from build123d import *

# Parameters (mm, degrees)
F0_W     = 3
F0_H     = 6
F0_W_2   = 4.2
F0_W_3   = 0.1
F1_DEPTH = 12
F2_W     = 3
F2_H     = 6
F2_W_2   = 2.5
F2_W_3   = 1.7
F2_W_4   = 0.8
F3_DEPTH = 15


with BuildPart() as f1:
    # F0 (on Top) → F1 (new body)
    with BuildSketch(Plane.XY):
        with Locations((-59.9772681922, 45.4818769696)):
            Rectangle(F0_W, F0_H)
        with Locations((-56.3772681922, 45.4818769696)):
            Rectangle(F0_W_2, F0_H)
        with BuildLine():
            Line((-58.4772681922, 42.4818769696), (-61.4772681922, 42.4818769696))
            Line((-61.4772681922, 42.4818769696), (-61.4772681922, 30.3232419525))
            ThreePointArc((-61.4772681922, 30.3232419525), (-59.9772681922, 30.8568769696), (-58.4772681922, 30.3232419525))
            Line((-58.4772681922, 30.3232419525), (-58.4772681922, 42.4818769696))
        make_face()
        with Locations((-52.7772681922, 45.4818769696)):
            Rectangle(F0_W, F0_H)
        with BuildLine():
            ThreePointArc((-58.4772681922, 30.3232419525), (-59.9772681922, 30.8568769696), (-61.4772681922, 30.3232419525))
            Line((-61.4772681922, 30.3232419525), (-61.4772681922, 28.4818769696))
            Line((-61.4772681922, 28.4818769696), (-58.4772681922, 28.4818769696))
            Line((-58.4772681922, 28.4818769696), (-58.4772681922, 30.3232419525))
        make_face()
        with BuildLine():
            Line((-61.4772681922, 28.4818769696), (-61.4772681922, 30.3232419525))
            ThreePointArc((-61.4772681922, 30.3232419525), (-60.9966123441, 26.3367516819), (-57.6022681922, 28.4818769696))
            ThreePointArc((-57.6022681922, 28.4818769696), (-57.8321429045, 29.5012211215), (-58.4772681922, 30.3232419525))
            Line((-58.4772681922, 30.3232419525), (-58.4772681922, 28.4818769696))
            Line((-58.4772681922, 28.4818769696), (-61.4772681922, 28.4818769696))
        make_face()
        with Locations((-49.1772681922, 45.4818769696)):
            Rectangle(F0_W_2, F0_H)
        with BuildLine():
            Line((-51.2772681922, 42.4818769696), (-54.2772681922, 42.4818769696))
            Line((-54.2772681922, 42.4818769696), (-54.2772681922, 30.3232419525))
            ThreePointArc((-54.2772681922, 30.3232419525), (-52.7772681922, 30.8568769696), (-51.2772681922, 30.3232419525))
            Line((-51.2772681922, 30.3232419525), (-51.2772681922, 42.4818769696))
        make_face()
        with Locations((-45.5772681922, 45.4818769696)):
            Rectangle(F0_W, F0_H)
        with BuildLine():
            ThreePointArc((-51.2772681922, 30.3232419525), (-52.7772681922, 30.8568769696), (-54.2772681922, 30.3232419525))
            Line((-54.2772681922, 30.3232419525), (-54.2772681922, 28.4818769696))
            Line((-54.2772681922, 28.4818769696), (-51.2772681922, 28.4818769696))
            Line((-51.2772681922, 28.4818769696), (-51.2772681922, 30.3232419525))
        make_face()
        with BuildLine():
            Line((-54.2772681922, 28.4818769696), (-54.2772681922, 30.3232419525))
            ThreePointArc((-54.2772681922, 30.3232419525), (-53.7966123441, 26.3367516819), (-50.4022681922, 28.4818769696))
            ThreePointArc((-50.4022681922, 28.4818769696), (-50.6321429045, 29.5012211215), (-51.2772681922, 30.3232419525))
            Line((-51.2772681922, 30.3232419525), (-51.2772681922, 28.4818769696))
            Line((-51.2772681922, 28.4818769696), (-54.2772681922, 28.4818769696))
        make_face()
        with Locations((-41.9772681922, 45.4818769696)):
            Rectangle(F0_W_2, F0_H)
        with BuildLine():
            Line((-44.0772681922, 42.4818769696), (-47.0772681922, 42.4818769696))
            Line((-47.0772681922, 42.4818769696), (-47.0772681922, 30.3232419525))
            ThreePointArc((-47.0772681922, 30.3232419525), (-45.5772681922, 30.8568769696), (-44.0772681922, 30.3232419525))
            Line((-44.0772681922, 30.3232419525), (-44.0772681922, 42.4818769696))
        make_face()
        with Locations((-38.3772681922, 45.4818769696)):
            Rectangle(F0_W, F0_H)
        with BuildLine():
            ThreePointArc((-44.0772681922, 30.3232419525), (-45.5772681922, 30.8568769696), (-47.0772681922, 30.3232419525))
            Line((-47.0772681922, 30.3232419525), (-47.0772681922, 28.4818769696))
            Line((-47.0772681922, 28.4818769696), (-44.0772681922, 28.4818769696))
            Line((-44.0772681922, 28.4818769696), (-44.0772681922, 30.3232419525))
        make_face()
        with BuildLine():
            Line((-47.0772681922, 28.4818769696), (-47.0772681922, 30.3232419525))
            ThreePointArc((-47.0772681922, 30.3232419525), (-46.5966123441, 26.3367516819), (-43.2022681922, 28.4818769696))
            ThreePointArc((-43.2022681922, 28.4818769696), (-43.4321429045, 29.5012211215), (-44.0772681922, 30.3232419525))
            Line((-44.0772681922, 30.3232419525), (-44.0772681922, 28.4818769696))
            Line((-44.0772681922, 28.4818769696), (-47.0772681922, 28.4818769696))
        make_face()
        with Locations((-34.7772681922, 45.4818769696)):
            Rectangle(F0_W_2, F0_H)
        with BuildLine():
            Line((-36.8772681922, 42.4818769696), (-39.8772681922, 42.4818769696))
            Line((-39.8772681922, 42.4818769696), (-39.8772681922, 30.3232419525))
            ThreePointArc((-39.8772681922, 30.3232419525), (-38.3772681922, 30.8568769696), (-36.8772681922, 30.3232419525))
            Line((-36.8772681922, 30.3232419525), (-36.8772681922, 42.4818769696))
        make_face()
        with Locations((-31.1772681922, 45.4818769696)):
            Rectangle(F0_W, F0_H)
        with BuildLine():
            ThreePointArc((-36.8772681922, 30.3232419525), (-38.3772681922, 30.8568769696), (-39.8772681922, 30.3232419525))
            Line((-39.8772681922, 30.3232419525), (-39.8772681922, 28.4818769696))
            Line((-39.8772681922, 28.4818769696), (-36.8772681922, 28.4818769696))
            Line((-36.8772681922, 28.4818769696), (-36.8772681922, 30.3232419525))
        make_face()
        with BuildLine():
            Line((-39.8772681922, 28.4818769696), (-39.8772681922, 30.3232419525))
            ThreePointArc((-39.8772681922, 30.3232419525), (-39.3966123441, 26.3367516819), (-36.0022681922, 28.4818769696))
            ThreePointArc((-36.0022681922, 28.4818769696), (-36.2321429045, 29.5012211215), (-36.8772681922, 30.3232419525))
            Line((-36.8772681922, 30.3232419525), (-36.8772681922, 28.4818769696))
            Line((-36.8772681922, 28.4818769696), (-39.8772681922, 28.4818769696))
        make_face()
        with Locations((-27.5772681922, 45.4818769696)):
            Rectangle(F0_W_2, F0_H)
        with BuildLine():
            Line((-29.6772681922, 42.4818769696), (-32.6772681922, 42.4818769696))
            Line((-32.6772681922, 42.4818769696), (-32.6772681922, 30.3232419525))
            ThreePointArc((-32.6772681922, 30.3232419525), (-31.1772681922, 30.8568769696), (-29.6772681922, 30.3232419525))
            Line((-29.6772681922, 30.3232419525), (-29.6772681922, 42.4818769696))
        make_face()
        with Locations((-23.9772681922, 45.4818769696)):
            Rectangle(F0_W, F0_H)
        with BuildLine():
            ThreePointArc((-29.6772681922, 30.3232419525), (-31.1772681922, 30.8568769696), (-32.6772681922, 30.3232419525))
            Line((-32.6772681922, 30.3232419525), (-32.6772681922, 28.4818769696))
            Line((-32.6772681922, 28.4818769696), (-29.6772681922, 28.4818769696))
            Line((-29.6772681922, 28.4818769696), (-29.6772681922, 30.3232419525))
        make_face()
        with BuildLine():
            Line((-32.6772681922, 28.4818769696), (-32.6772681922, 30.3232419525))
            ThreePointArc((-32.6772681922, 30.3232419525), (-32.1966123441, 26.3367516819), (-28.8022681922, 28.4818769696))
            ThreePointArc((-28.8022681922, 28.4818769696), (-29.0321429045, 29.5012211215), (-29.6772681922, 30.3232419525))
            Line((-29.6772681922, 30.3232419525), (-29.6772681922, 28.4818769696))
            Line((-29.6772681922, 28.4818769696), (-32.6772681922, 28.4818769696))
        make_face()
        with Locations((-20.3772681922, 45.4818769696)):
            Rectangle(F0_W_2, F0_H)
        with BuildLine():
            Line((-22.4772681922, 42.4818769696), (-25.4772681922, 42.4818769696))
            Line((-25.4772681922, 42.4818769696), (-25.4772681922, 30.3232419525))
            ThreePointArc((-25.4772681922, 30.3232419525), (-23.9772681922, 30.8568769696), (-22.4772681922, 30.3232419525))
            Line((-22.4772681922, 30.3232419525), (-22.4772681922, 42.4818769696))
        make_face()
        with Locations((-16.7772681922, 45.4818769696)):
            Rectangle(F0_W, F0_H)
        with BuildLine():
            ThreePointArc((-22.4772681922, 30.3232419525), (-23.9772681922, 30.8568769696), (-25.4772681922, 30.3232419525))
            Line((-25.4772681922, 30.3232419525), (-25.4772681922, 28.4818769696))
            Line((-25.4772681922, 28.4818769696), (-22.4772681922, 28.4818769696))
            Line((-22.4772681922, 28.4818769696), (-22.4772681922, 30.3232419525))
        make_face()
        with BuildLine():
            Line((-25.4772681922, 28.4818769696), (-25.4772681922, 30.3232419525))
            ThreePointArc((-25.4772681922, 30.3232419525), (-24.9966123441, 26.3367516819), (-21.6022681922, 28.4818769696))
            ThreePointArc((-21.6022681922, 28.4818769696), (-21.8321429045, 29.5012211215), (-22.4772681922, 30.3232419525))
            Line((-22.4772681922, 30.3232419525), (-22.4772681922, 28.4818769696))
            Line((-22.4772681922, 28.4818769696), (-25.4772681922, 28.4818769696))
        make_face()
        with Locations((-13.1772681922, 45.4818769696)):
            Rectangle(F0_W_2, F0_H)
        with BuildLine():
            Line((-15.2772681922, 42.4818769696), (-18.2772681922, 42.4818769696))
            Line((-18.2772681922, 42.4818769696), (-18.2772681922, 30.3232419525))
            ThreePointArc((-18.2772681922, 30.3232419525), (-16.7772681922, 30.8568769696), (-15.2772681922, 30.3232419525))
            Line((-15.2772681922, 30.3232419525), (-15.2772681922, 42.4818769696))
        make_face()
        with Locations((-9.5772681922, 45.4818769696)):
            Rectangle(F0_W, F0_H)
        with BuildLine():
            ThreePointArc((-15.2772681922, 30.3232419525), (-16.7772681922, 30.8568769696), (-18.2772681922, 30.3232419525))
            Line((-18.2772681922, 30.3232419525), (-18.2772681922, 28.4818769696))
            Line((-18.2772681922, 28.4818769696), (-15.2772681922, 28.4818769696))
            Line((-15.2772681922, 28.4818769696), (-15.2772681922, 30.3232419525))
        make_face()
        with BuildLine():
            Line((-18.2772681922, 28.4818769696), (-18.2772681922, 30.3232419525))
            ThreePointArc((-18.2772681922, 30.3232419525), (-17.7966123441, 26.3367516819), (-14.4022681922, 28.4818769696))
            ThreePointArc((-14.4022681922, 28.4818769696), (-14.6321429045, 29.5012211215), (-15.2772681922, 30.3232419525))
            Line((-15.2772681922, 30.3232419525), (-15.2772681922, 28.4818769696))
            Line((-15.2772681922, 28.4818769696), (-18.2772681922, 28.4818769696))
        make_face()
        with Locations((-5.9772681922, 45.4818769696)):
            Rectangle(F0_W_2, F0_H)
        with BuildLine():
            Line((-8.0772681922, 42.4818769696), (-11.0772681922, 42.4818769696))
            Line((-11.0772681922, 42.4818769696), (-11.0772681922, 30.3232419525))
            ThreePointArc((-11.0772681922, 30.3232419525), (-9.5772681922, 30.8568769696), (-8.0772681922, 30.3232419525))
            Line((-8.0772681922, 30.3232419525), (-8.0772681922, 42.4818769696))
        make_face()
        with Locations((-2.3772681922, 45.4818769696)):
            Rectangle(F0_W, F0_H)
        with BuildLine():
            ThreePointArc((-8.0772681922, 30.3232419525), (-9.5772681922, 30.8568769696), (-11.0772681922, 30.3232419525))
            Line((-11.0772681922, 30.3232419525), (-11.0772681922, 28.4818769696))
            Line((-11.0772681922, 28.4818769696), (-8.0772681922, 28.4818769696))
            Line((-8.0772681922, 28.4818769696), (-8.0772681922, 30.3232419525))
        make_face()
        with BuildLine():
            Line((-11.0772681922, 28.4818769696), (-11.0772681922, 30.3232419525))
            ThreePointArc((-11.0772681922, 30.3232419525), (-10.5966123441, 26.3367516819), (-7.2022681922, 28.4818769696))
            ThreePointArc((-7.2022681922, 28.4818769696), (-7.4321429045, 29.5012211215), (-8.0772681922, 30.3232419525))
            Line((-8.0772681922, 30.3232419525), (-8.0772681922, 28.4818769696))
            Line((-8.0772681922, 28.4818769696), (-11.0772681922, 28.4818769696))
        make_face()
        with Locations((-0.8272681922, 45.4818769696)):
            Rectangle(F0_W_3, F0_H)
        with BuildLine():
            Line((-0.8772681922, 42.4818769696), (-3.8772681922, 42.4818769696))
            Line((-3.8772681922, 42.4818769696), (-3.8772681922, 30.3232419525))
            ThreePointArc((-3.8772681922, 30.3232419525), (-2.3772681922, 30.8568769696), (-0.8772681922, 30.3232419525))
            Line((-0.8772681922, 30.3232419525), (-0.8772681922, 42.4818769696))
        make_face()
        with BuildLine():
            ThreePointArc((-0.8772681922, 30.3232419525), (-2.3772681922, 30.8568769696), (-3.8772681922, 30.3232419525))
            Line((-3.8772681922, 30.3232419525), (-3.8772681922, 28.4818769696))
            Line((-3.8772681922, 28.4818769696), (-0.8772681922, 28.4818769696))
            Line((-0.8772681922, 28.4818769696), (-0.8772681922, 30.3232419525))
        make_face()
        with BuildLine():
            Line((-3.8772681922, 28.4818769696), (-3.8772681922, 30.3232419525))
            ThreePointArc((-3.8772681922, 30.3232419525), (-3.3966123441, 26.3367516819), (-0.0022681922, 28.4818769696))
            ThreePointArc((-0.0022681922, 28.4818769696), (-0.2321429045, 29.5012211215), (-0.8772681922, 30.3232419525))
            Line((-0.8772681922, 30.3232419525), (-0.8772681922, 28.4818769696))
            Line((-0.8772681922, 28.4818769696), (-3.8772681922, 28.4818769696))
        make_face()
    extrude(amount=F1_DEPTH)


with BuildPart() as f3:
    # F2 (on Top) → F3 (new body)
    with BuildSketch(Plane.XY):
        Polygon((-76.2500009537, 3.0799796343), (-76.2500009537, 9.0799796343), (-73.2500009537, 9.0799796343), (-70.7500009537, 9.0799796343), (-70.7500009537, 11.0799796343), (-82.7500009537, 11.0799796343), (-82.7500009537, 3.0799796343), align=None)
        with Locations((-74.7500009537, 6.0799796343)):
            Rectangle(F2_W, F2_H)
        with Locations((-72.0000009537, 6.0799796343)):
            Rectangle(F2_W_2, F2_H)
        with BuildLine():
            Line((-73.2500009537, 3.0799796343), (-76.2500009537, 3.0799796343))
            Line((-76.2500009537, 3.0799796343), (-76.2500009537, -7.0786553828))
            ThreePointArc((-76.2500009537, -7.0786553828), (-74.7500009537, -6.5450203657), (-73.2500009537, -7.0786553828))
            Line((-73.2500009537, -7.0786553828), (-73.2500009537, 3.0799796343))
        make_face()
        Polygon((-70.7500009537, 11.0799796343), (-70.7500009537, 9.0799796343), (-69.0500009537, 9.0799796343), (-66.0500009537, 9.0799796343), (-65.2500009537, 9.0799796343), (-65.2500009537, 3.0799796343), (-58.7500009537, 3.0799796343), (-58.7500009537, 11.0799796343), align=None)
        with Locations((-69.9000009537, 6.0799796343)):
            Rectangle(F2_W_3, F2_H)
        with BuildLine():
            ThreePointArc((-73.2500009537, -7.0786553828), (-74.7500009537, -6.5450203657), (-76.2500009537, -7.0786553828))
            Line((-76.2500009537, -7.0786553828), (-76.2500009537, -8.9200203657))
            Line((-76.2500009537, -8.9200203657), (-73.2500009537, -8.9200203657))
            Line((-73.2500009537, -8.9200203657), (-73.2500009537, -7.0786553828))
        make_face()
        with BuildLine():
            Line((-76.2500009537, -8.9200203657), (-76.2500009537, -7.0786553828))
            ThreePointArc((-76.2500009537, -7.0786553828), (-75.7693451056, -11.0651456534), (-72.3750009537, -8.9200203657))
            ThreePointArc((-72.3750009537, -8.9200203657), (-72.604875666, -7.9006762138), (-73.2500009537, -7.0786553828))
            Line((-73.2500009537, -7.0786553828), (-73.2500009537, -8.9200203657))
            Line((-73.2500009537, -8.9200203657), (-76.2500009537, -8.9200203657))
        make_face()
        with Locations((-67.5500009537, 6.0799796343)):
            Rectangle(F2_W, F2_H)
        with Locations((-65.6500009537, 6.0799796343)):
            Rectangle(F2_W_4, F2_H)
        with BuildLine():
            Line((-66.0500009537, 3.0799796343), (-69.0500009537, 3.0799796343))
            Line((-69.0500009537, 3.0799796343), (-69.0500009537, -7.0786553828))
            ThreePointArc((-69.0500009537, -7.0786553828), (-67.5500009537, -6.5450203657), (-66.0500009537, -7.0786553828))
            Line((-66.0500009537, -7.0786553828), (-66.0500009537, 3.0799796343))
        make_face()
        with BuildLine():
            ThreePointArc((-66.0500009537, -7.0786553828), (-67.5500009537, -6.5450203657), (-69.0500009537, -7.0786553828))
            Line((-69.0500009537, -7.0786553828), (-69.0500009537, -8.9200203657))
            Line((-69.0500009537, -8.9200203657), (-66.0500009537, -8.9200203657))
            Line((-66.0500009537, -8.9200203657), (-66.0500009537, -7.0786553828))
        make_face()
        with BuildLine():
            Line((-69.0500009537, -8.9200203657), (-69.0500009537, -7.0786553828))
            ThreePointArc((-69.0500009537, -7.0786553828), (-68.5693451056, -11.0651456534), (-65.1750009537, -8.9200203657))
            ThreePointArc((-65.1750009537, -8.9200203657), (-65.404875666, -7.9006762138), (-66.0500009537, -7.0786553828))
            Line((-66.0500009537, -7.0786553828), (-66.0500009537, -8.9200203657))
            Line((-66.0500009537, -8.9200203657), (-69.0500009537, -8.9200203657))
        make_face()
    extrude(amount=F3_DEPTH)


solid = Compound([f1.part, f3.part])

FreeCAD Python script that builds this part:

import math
import FreeCAD as App
import Part
import Sketcher

doc = App.newDocument("Part")
params = doc.addObject("Spreadsheet::Sheet", "Params")
for row, (alias, value) in enumerate([
    ("sketch1_height", "6 mm"),
    ("sketch1_width", "4.2 mm"),
    ("sketch1_width2", "0.1 mm"),
    ("sketch1_width3", "60.7 mm"),
    ("pad1_length", "12 mm"),
    ("sketch2_width", "24 mm"),
    ("sketch2_height", "8 mm"),
    ("sketch2_width2", "6.5 mm"),
    ("sketch2_width3", "4.2 mm"),
    ("sketch2_width4", "7.3 mm"),
    ("pad2_length", "15 mm"),
], start=1):
    params.set(f"A{row}", alias)
    params.set(f"B{row}", "=" + value)
    params.setAlias(f"B{row}", alias)

body = doc.addObject("PartDesign::Body", "Body")

# Sketch on XY plane
sketch1 = doc.addObject("Sketcher::SketchObject", "Sketch")
body.addObject(sketch1)
sketch1.AttachmentSupport = (doc.XY_Plane, [""])
sketch1.MapMode = "FlatFace"
sketch1.addGeometry([
    Part.LineSegment(App.Vector(-61.48, 48.48, 0), App.Vector(-61.48, 30.32, 0)),  # 0
    Part.ArcOfCircle(Part.Circle(App.Vector(-59.98, 28.48, 0), App.Vector(0, 0, 1), 2.38), math.radians(129), math.radians(360)),  # 1
    Part.ArcOfCircle(Part.Circle(App.Vector(-59.98, 28.48, 0), App.Vector(0, 0, 1), 2.38), math.radians(0), math.radians(51)),  # 2
    Part.LineSegment(App.Vector(-58.48, 30.32, 0), App.Vector(-58.48, 42.48, 0)),  # 3
    Part.LineSegment(App.Vector(-58.48, 42.48, 0), App.Vector(-54.28, 42.48, 0)),  # 4
    Part.LineSegment(App.Vector(-54.28, 42.48, 0), App.Vector(-54.28, 30.32, 0)),  # 5
    Part.ArcOfCircle(Part.Circle(App.Vector(-52.78, 28.48, 0), App.Vector(0, 0, 1), 2.38), math.radians(129), math.radians(360)),  # 6
    Part.ArcOfCircle(Part.Circle(App.Vector(-52.78, 28.48, 0), App.Vector(0, 0, 1), 2.38), math.radians(0), math.radians(51)),  # 7
    Part.LineSegment(App.Vector(-51.28, 30.32, 0), App.Vector(-51.28, 42.48, 0)),  # 8
    Part.LineSegment(App.Vector(-51.28, 42.48, 0), App.Vector(-47.08, 42.48, 0)),  # 9
    Part.LineSegment(App.Vector(-47.08, 42.48, 0), App.Vector(-47.08, 30.32, 0)),  # 10
    Part.ArcOfCircle(Part.Circle(App.Vector(-45.58, 28.48, 0), App.Vector(0, 0, 1), 2.38), math.radians(129), math.radians(360)),  # 11
    Part.ArcOfCircle(Part.Circle(App.Vector(-45.58, 28.48, 0), App.Vector(0, 0, 1), 2.38), math.radians(0), math.radians(51)),  # 12
    Part.LineSegment(App.Vector(-44.08, 30.32, 0), App.Vector(-44.08, 42.48, 0)),  # 13
    Part.LineSegment(App.Vector(-44.08, 42.48, 0), App.Vector(-39.88, 42.48, 0)),  # 14
    Part.LineSegment(App.Vector(-39.88, 42.48, 0), App.Vector(-39.88, 30.32, 0)),  # 15
    Part.ArcOfCircle(Part.Circle(App.Vector(-38.38, 28.48, 0), App.Vector(0, 0, 1), 2.38), math.radians(129), math.radians(360)),  # 16
    Part.ArcOfCircle(Part.Circle(App.Vector(-38.38, 28.48, 0), App.Vector(0, 0, 1), 2.38), math.radians(0), math.radians(51)),  # 17
    Part.LineSegment(App.Vector(-36.88, 30.32, 0), App.Vector(-36.88, 42.48, 0)),  # 18
    Part.LineSegment(App.Vector(-36.88, 42.48, 0), App.Vector(-32.68, 42.48, 0)),  # 19
    Part.LineSegment(App.Vector(-32.68, 42.48, 0), App.Vector(-32.68, 30.32, 0)),  # 20
    Part.ArcOfCircle(Part.Circle(App.Vector(-31.18, 28.48, 0), App.Vector(0, 0, 1), 2.38), math.radians(129), math.radians(360)),  # 21
    Part.ArcOfCircle(Part.Circle(App.Vector(-31.18, 28.48, 0), App.Vector(0, 0, 1), 2.38), math.radians(0), math.radians(51)),  # 22
    Part.LineSegment(App.Vector(-29.68, 30.32, 0), App.Vector(-29.68, 42.48, 0)),  # 23
    Part.LineSegment(App.Vector(-29.68, 42.48, 0), App.Vector(-25.48, 42.48, 0)),  # 24
    Part.LineSegment(App.Vector(-25.48, 42.48, 0), App.Vector(-25.48, 30.32, 0)),  # 25
    Part.ArcOfCircle(Part.Circle(App.Vector(-23.98, 28.48, 0), App.Vector(0, 0, 1), 2.38), math.radians(129), math.radians(360)),  # 26
    Part.ArcOfCircle(Part.Circle(App.Vector(-23.98, 28.48, 0), App.Vector(0, 0, 1), 2.38), math.radians(0), math.radians(51)),  # 27
    Part.LineSegment(App.Vector(-22.48, 30.32, 0), App.Vector(-22.48, 42.48, 0)),  # 28
    Part.LineSegment(App.Vector(-22.48, 42.48, 0), App.Vector(-18.28, 42.48, 0)),  # 29
    Part.LineSegment(App.Vector(-18.28, 42.48, 0), App.Vector(-18.28, 30.32, 0)),  # 30
    Part.ArcOfCircle(Part.Circle(App.Vector(-16.78, 28.48, 0), App.Vector(0, 0, 1), 2.38), math.radians(129), math.radians(360)),  # 31
    Part.ArcOfCircle(Part.Circle(App.Vector(-16.78, 28.48, 0), App.Vector(0, 0, 1), 2.38), math.radians(0), math.radians(51)),  # 32
    Part.LineSegment(App.Vector(-15.28, 30.32, 0), App.Vector(-15.28, 42.48, 0)),  # 33
    Part.LineSegment(App.Vector(-15.28, 42.48, 0), App.Vector(-11.08, 42.48, 0)),  # 34
    Part.LineSegment(App.Vector(-11.08, 42.48, 0), App.Vector(-11.08, 30.32, 0)),  # 35
    Part.ArcOfCircle(Part.Circle(App.Vector(-9.58, 28.48, 0), App.Vector(0, 0, 1), 2.38), math.radians(129), math.radians(360)),  # 36
    Part.ArcOfCircle(Part.Circle(App.Vector(-9.58, 28.48, 0), App.Vector(0, 0, 1), 2.38), math.radians(0), math.radians(51)),  # 37
    Part.LineSegment(App.Vector(-8.08, 30.32, 0), App.Vector(-8.08, 42.48, 0)),  # 38
    Part.LineSegment(App.Vector(-8.08, 42.48, 0), App.Vector(-3.88, 42.48, 0)),  # 39
    Part.LineSegment(App.Vector(-3.88, 42.48, 0), App.Vector(-3.88, 30.32, 0)),  # 40
    Part.ArcOfCircle(Part.Circle(App.Vector(-2.38, 28.48, 0), App.Vector(0, 0, 1), 2.38), math.radians(129), math.radians(360)),  # 41
    Part.ArcOfCircle(Part.Circle(App.Vector(-2.38, 28.48, 0), App.Vector(0, 0, 1), 2.38), math.radians(0), math.radians(51)),  # 42
    Part.LineSegment(App.Vector(-0.88, 30.32, 0), App.Vector(-0.88, 42.48, 0)),  # 43
    Part.LineSegment(App.Vector(-0.88, 42.48, 0), App.Vector(-0.78, 42.48, 0)),  # 44
    Part.LineSegment(App.Vector(-0.78, 42.48, 0), App.Vector(-0.78, 48.48, 0)),  # 45
    Part.LineSegment(App.Vector(-0.78, 48.48, 0), App.Vector(-61.48, 48.48, 0)),  # 46
], False)
sketch1.addConstraint([
    Sketcher.Constraint("Coincident", 0, 2, 1, 1),
    Sketcher.Constraint("Tangent", 1, 2, 2, 1),
    Sketcher.Constraint("Coincident", 2, 2, 3, 1),
    Sketcher.Constraint("Coincident", 3, 2, 4, 1),
    Sketcher.Constraint("Coincident", 4, 2, 5, 1),
    Sketcher.Constraint("Coincident", 5, 2, 6, 1),
    Sketcher.Constraint("Tangent", 6, 2, 7, 1),
    Sketcher.Constraint("Coincident", 7, 2, 8, 1),
    Sketcher.Constraint("Coincident", 8, 2, 9, 1),
    Sketcher.Constraint("Coincident", 9, 2, 10, 1),
    Sketcher.Constraint("Coincident", 10, 2, 11, 1),
    Sketcher.Constraint("Tangent", 11, 2, 12, 1),
    Sketcher.Constraint("Coincident", 12, 2, 13, 1),
    Sketcher.Constraint("Coincident", 13, 2, 14, 1),
    Sketcher.Constraint("Coincident", 14, 2, 15, 1),
    Sketcher.Constraint("Coincident", 15, 2, 16, 1),
    Sketcher.Constraint("Tangent", 16, 2, 17, 1),
    Sketcher.Constraint("Coincident", 17, 2, 18, 1),
    Sketcher.Constraint("Coincident", 18, 2, 19, 1),
    Sketcher.Constraint("Coincident", 19, 2, 20, 1),
    Sketcher.Constraint("Coincident", 20, 2, 21, 1),
    Sketcher.Constraint("Tangent", 21, 2, 22, 1),
    Sketcher.Constraint("Coincident", 22, 2, 23, 1),
    Sketcher.Constraint("Coincident", 23, 2, 24, 1),
    Sketcher.Constraint("Coincident", 24, 2, 25, 1),
    Sketcher.Constraint("Coincident", 25, 2, 26, 1),
    Sketcher.Constraint("Tangent", 26, 2, 27, 1),
    Sketcher.Constraint("Coincident", 27, 2, 28, 1),
    Sketcher.Constraint("Coincident", 28, 2, 29, 1),
    Sketcher.Constraint("Coincident", 29, 2, 30, 1),
    Sketcher.Constraint("Coincident", 30, 2, 31, 1),
    Sketcher.Constraint("Tangent", 31, 2, 32, 1),
    Sketcher.Constraint("Coincident", 32, 2, 33, 1),
    Sketcher.Constraint("Coincident", 33, 2, 34, 1),
    Sketcher.Constraint("Coincident", 34, 2, 35, 1),
    Sketcher.Constraint("Coincident", 35, 2, 36, 1),
    Sketcher.Constraint("Tangent", 36, 2, 37, 1),
    Sketcher.Constraint("Coincident", 37, 2, 38, 1),
    Sketcher.Constraint("Coincident", 38, 2, 39, 1),
    Sketcher.Constraint("Coincident", 39, 2, 40, 1),
    Sketcher.Constraint("Coincident", 40, 2, 41, 1),
    Sketcher.Constraint("Tangent", 41, 2, 42, 1),
    Sketcher.Constraint("Coincident", 42, 2, 43, 1),
    Sketcher.Constraint("Coincident", 43, 2, 44, 1),
    Sketcher.Constraint("Coincident", 44, 2, 45, 1),
    Sketcher.Constraint("Coincident", 45, 2, 46, 1),
    Sketcher.Constraint("Coincident", 46, 2, 0, 1),
    Sketcher.Constraint("Vertical", 0),
    Sketcher.Constraint("Vertical", 3),
    Sketcher.Constraint("Horizontal", 4),
    Sketcher.Constraint("Vertical", 5),
    Sketcher.Constraint("Vertical", 8),
    Sketcher.Constraint("Horizontal", 9),
    Sketcher.Constraint("Vertical", 10),
    Sketcher.Constraint("Vertical", 13),
    Sketcher.Constraint("Horizontal", 14),
    Sketcher.Constraint("Vertical", 15),
    Sketcher.Constraint("Vertical", 18),
    Sketcher.Constraint("Horizontal", 19),
    Sketcher.Constraint("Vertical", 20),
    Sketcher.Constraint("Vertical", 23),
    Sketcher.Constraint("Horizontal", 24),
    Sketcher.Constraint("Vertical", 25),
    Sketcher.Constraint("Vertical", 28),
    Sketcher.Constraint("Horizontal", 29),
    Sketcher.Constraint("Vertical", 30),
    Sketcher.Constraint("Vertical", 33),
    Sketcher.Constraint("Horizontal", 34),
    Sketcher.Constraint("Vertical", 35),
    Sketcher.Constraint("Vertical", 38),
    Sketcher.Constraint("Horizontal", 39),
    Sketcher.Constraint("Vertical", 40),
    Sketcher.Constraint("Vertical", 43),
    Sketcher.Constraint("Horizontal", 44),
    Sketcher.Constraint("Vertical", 45),
    Sketcher.Constraint("Horizontal", 46),
    Sketcher.Constraint("Equal", 1, 2),
    Sketcher.Constraint("Equal", 2, 6),
    Sketcher.Constraint("Equal", 6, 7),
    Sketcher.Constraint("Equal", 7, 11),
    Sketcher.Constraint("Equal", 11, 12),
    Sketcher.Constraint("Equal", 12, 16),
    Sketcher.Constraint("Equal", 16, 17),
    Sketcher.Constraint("Equal", 17, 21),
    Sketcher.Constraint("Equal", 21, 22),
    Sketcher.Constraint("Equal", 22, 26),
    Sketcher.Constraint("Equal", 26, 27),
    Sketcher.Constraint("Equal", 27, 31),
    Sketcher.Constraint("Equal", 31, 32),
    Sketcher.Constraint("Equal", 32, 36),
    Sketcher.Constraint("Equal", 36, 37),
    Sketcher.Constraint("Equal", 37, 41),
    Sketcher.Constraint("Equal", 41, 42),
    Sketcher.Constraint("Horizontal", 2, 3, 6, 3),
    Sketcher.Constraint("Horizontal", 7, 3, 11, 3),
    Sketcher.Constraint("Horizontal", 12, 3, 16, 3),
    Sketcher.Constraint("Horizontal", 17, 3, 21, 3),
    Sketcher.Constraint("Horizontal", 22, 3, 26, 3),
    Sketcher.Constraint("Horizontal", 27, 3, 31, 3),
    Sketcher.Constraint("Horizontal", 32, 3, 36, 3),
    Sketcher.Constraint("Horizontal", 37, 3, 41, 3),
    Sketcher.Constraint("Horizontal", 42, 3, 1, 2),
    Sketcher.Constraint("Horizontal", 0, 2, 2, 2),
    Sketcher.Constraint("Horizontal", 2, 2, 5, 2),
    Sketcher.Constraint("Horizontal", 1, 2, 6, 2),
    Sketcher.Constraint("Horizontal", 5, 2, 7, 2),
    Sketcher.Constraint("Horizontal", 4, 2, 8, 2),
    Sketcher.Constraint("Horizontal", 7, 2, 10, 2),
    Sketcher.Constraint("Horizontal", 6, 2, 11, 2),
    Sketcher.Constraint("Horizontal", 10, 2, 12, 2),
    Sketcher.Constraint("Horizontal", 9, 2, 13, 2),
    Sketcher.Constraint("Horizontal", 12, 2, 15, 2),
    Sketcher.Constraint("Horizontal", 11, 2, 16, 2),
    Sketcher.Constraint("Horizontal", 15, 2, 17, 2),
    Sketcher.Constraint("Horizontal", 14, 2, 18, 2),
    Sketcher.Constraint("Horizontal", 17, 2, 20, 2),
    Sketcher.Constraint("Horizontal", 16, 2, 21, 2),
    Sketcher.Constraint("Horizontal", 20, 2, 22, 2),
    Sketcher.Constraint("Horizontal", 19, 2, 23, 2),
    Sketcher.Constraint("Horizontal", 22, 2, 25, 2),
    Sketcher.Constraint("Horizontal", 21, 2, 26, 2),
    Sketcher.Constraint("Horizontal", 25, 2, 27, 2),
    Sketcher.Constraint("Horizontal", 24, 2, 28, 2),
    Sketcher.Constraint("Horizontal", 27, 2, 30, 2),
    Sketcher.Constraint("Horizontal", 26, 2, 31, 2),
    Sketcher.Constraint("Horizontal", 30, 2, 32, 2),
    Sketcher.Constraint("Horizontal", 29, 2, 33, 2),
    Sketcher.Constraint("Horizontal", 32, 2, 35, 2),
    Sketcher.Constraint("Horizontal", 31, 2, 36, 2),
    Sketcher.Constraint("Horizontal", 35, 2, 37, 2),
    Sketcher.Constraint("Horizontal", 34, 2, 38, 2),
    Sketcher.Constraint("Horizontal", 37, 2, 40, 2),
    Sketcher.Constraint("Horizontal", 36, 2, 41, 2),
    Sketcher.Constraint("Horizontal", 40, 2, 42, 2),
    Sketcher.Constraint("Horizontal", 39, 2, 43, 2),
    Sketcher.Constraint("Equal", 4, 9),
    Sketcher.Constraint("Equal", 9, 14),
    Sketcher.Constraint("Equal", 14, 19),
    Sketcher.Constraint("Equal", 19, 24),
    Sketcher.Constraint("Equal", 24, 29),
    Sketcher.Constraint("Equal", 29, 34),
    Sketcher.Constraint("Equal", 34, 39),
    Sketcher.Constraint("DistanceY", 45, 1, 45, 2, 6.0),
    Sketcher.Constraint("DistanceX", 4, 1, 4, 2, 4.2),
    Sketcher.Constraint("DistanceX", 44, 1, 44, 2, 0.1),
    Sketcher.Constraint("DistanceX", 46, 2, 46, 1, 60.7),
    Sketcher.Constraint("Radius", 1, 2.375),
    Sketcher.Constraint("DistanceY", 0, 2, 0, 1, 18.158635),
    Sketcher.Constraint("DistanceX", 1, 3, -1, 1, 59.977268),
    Sketcher.Constraint("DistanceY", -1, 1, 0, 2, 30.323242),
])
sketch1.setExpression("Constraints[142]", "Params.sketch1_height")
sketch1.setExpression("Constraints[143]", "Params.sketch1_width")
sketch1.setExpression("Constraints[144]", "Params.sketch1_width2")
sketch1.setExpression("Constraints[145]", "Params.sketch1_width3")
pad1 = doc.addObject("PartDesign::Pad", "Pad")
body.addObject(pad1)
pad1.Profile = sketch1
pad1.setExpression("Length", "Params.pad1_length")
body2 = doc.addObject("PartDesign::Body", "Body001")

# Sketch on XY plane
sketch2 = doc.addObject("Sketcher::SketchObject", "Sketch001")
body2.addObject(sketch2)
sketch2.AttachmentSupport = (doc.getObject("XY_Plane001"), [""])
sketch2.MapMode = "FlatFace"
sketch2.addGeometry([
    Part.LineSegment(App.Vector(-82.8, 11.1, 0), App.Vector(-82.8, 3.1, 0)),  # 0
    Part.LineSegment(App.Vector(-82.8, 3.1, 0), App.Vector(-76.3, 3.1, 0)),  # 1
    Part.LineSegment(App.Vector(-76.3, 3.1, 0), App.Vector(-76.3, -7.1, 0)),  # 2
    Part.ArcOfCircle(Part.Circle(App.Vector(-74.8, -8.9, 0), App.Vector(0, 0, 1), 2.4), math.radians(129), math.radians(360)),  # 3
    Part.ArcOfCircle(Part.Circle(App.Vector(-74.8, -8.9, 0), App.Vector(0, 0, 1), 2.4), math.radians(0), math.radians(51)),  # 4
    Part.LineSegment(App.Vector(-73.3, -7.1, 0), App.Vector(-73.3, 3.1, 0)),  # 5
    Part.LineSegment(App.Vector(-73.3, 3.1, 0), App.Vector(-69.1, 3.1, 0)),  # 6
    Part.LineSegment(App.Vector(-69.1, 3.1, 0), App.Vector(-69.1, -7.1, 0)),  # 7
    Part.ArcOfCircle(Part.Circle(App.Vector(-67.6, -8.9, 0), App.Vector(0, 0, 1), 2.4), math.radians(129), math.radians(360)),  # 8
    Part.ArcOfCircle(Part.Circle(App.Vector(-67.6, -8.9, 0), App.Vector(0, 0, 1), 2.4), math.radians(0), math.radians(51)),  # 9
    Part.LineSegment(App.Vector(-66.1, -7.1, 0), App.Vector(-66.1, 3.1, 0)),  # 10
    Part.LineSegment(App.Vector(-66.1, 3.1, 0), App.Vector(-58.8, 3.1, 0)),  # 11
    Part.LineSegment(App.Vector(-58.8, 3.1, 0), App.Vector(-58.8, 11.1, 0)),  # 12
    Part.LineSegment(App.Vector(-58.8, 11.1, 0), App.Vector(-82.8, 11.1, 0)),  # 13
], False)
sketch2.addConstraint([
    Sketcher.Constraint("Coincident", 0, 2, 1, 1),
    Sketcher.Constraint("Coincident", 1, 2, 2, 1),
    Sketcher.Constraint("Coincident", 2, 2, 3, 1),
    Sketcher.Constraint("Tangent", 3, 2, 4, 1),
    Sketcher.Constraint("Coincident", 4, 2, 5, 1),
    Sketcher.Constraint("Coincident", 5, 2, 6, 1),
    Sketcher.Constraint("Coincident", 6, 2, 7, 1),
    Sketcher.Constraint("Coincident", 7, 2, 8, 1),
    Sketcher.Constraint("Tangent", 8, 2, 9, 1),
    Sketcher.Constraint("Coincident", 9, 2, 10, 1),
    Sketcher.Constraint("Coincident", 10, 2, 11, 1),
    Sketcher.Constraint("Coincident", 11, 2, 12, 1),
    Sketcher.Constraint("Coincident", 12, 2, 13, 1),
    Sketcher.Constraint("Coincident", 13, 2, 0, 1),
    Sketcher.Constraint("Vertical", 0),
    Sketcher.Constraint("Horizontal", 1),
    Sketcher.Constraint("Vertical", 2),
    Sketcher.Constraint("Vertical", 5),
    Sketcher.Constraint("Horizontal", 6),
    Sketcher.Constraint("Vertical", 7),
    Sketcher.Constraint("Vertical", 10),
    Sketcher.Constraint("Horizontal", 11),
    Sketcher.Constraint("Vertical", 12),
    Sketcher.Constraint("Horizontal", 13),
    Sketcher.Constraint("Equal", 3, 4),
    Sketcher.Constraint("Equal", 4, 8),
    Sketcher.Constraint("Equal", 8, 9),
    Sketcher.Constraint("Horizontal", 4, 3, 8, 3),
    Sketcher.Constraint("Horizontal", 9, 3, 3, 2),
    Sketcher.Constraint("Horizontal", 2, 2, 4, 2),
    Sketcher.Constraint("Horizontal", 1, 2, 5, 2),
    Sketcher.Constraint("Horizontal", 4, 2, 7, 2),
    Sketcher.Constraint("Horizontal", 3, 2, 8, 2),
    Sketcher.Constraint("Horizontal", 7, 2, 9, 2),
    Sketcher.Constraint("Horizontal", 6, 2, 10, 2),
    Sketcher.Constraint("DistanceX", 13, 2, 13, 1, 24.0),
    Sketcher.Constraint("DistanceY", 0, 2, 0, 1, 8.0),
    Sketcher.Constraint("DistanceX", 1, 1, 1, 2, 6.5),
    Sketcher.Constraint("DistanceX", 6, 1, 6, 2, 4.2),
    Sketcher.Constraint("DistanceX", 11, 1, 11, 2, 7.3),
    Sketcher.Constraint("Radius", 3, 2.375),
    Sketcher.Constraint("DistanceY", 3, 3, 0, 2, 12.0),
    Sketcher.Constraint("DistanceX", 3, 3, -1, 1, 74.750001),
    Sketcher.Constraint("DistanceY", 3, 3, -1, 1, 8.92002),
])
sketch2.setExpression("Constraints[35]", "Params.sketch2_width")
sketch2.setExpression("Constraints[36]", "Params.sketch2_height")
sketch2.setExpression("Constraints[37]", "Params.sketch2_width2")
sketch2.setExpression("Constraints[38]", "Params.sketch2_width3")
sketch2.setExpression("Constraints[39]", "Params.sketch2_width4")
pad2 = doc.addObject("PartDesign::Pad", "Pad001")
body2.addObject(pad2)
pad2.Profile = sketch2
pad2.setExpression("Length", "Params.pad2_length")

doc.recompute()
